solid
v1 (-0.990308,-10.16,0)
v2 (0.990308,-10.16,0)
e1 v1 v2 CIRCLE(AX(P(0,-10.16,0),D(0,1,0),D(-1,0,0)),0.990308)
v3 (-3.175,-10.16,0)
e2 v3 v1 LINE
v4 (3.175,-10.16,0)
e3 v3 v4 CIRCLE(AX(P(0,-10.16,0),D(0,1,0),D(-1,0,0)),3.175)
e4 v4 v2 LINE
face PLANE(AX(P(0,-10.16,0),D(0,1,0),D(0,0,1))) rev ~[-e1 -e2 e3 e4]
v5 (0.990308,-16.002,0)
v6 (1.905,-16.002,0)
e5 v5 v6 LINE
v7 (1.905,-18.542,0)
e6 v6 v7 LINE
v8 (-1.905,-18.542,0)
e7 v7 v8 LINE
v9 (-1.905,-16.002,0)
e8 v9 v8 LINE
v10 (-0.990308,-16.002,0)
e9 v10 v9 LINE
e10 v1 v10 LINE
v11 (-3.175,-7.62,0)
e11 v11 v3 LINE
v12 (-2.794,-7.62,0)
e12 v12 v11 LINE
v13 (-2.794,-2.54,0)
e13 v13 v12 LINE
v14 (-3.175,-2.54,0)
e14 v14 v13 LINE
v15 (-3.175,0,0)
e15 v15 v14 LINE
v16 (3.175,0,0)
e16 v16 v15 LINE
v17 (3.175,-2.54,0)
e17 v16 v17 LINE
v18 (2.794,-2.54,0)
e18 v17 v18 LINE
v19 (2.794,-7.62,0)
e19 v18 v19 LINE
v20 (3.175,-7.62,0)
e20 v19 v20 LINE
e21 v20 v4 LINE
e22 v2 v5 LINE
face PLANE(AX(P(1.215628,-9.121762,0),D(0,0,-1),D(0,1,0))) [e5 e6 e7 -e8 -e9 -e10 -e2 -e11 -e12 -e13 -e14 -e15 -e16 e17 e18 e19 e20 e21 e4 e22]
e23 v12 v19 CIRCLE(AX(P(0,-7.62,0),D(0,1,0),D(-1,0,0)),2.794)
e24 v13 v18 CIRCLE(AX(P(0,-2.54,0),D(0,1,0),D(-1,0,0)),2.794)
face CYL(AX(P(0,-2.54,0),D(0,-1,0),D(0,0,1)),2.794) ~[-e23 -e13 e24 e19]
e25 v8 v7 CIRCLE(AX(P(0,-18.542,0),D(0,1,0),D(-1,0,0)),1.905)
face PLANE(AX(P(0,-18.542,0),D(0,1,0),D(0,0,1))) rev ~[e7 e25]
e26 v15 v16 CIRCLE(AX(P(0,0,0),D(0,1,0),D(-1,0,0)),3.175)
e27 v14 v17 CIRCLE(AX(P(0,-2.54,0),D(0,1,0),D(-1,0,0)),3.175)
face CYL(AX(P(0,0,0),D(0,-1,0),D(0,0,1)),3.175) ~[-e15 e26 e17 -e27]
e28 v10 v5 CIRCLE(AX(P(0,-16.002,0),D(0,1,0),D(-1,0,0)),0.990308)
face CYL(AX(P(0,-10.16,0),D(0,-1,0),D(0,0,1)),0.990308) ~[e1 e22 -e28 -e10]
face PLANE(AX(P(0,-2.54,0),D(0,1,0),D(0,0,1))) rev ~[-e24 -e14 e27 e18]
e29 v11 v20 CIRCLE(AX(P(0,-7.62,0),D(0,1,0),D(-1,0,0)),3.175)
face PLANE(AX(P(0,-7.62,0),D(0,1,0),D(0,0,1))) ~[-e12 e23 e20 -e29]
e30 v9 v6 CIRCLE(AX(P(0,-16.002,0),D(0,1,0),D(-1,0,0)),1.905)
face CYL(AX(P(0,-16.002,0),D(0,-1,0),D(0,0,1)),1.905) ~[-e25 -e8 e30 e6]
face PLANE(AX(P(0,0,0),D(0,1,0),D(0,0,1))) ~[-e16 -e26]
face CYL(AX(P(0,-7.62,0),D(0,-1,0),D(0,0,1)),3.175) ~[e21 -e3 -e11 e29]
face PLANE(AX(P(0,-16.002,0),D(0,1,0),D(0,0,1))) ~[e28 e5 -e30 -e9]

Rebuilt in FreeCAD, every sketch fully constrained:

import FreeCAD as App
import Part
import Sketcher

V = App.Vector
Q = App.Units.Quantity

doc = App.newDocument("Part")
params = doc.addObject("Spreadsheet::Sheet", "Params")
for row, (alias, value) in enumerate([
    ("sketch1_width", "0.1 in"),
    ("sketch1_width2", "0.2 in"),
    ("sketch1_width3", "0.73 in"),
    ("sketch1_height", "0.125 in"),
    ("sketch1_height2", "0.015 in"),
    ("revolution_angle", "90 deg"),
    ("sketch2_width", "0.1 in"),
    ("sketch2_width2", "0.2 in"),
    ("sketch2_width3", "0.73 in"),
    ("sketch2_height", "0.125 in"),
    ("sketch2_height2", "0.015 in"),
    ("revolution2_angle", "90 deg"),
], start=1):
    params.set(f"A{row}", alias)
    params.set(f"B{row}", "=" + value)
    params.setAlias(f"B{row}", alias)

body = doc.addObject("PartDesign::Body", "Body")

sketch1 = body.newObject("Sketcher::SketchObject", "Sketch")
sketch1.AttachmentSupport = (doc.getObject("YZ_Plane"), [""])
sketch1.MapMode = "FlatFace"
sketch1.addGeometry([
    Part.LineSegment(V(-18.54, 0, 0), V(0, 0, 0)),
    Part.LineSegment(V(0, 0, 0), V(0, 3.17, 0)),
    Part.LineSegment(V(0, 3.17, 0), V(-2.54, 3.17, 0)),
    Part.LineSegment(V(-2.54, 3.17, 0), V(-2.54, 2.79, 0)),
    Part.LineSegment(V(-2.54, 2.79, 0), V(-7.62, 2.79, 0)),
    Part.LineSegment(V(-7.62, 2.79, 0), V(-7.62, 3.17, 0)),
    Part.LineSegment(V(-7.62, 3.17, 0), V(-10.16, 3.17, 0)),
    Part.LineSegment(V(-10.16, 3.17, 0), V(-10.16, 0.99, 0)),
    Part.LineSegment(V(-10.16, 0.99, 0), V(-16, 0.99, 0)),
    Part.LineSegment(V(-16, 0.99, 0), V(-16, 1.91, 0)),
    Part.LineSegment(V(-16, 1.91, 0), V(-18.54, 1.91, 0)),
    Part.LineSegment(V(-18.54, 1.91, 0), V(-18.54, 0, 0)),
], False)
sketch1.addConstraint([
    Sketcher.Constraint("Coincident", 0, 2, 1, 1),
    Sketcher.Constraint("Coincident", 1, 2, 2, 1),
    Sketcher.Constraint("Coincident", 2, 2, 3, 1),
    Sketcher.Constraint("Coincident", 3, 2, 4, 1),
    Sketcher.Constraint("Coincident", 4, 2, 5, 1),
    Sketcher.Constraint("Coincident", 5, 2, 6, 1),
    Sketcher.Constraint("Coincident", 6, 2, 7, 1),
    Sketcher.Constraint("Coincident", 7, 2, 8, 1),
    Sketcher.Constraint("Coincident", 8, 2, 9, 1),
    Sketcher.Constraint("Coincident", 9, 2, 10, 1),
    Sketcher.Constraint("Coincident", 10, 2, 11, 1),
    Sketcher.Constraint("Coincident", 11, 2, 0, 1),
    Sketcher.Constraint("Horizontal", 0),
    Sketcher.Constraint("Vertical", 1),
    Sketcher.Constraint("Horizontal", 2),
    Sketcher.Constraint("Vertical", 3),
    Sketcher.Constraint("Horizontal", 4),
    Sketcher.Constraint("Vertical", 5),
    Sketcher.Constraint("Horizontal", 6),
    Sketcher.Constraint("Vertical", 7),
    Sketcher.Constraint("Horizontal", 8),
    Sketcher.Constraint("Vertical", 9),
    Sketcher.Constraint("Horizontal", 10),
    Sketcher.Constraint("Vertical", 11),
    Sketcher.Constraint("Coincident", 0, 2, -1, 1),
    Sketcher.Constraint("Horizontal", 2, 2, 5, 2),
    Sketcher.Constraint("Equal", 2, 6),
    Sketcher.Constraint("Equal", 6, 10),
    Sketcher.Constraint("DistanceX", 2, 2, 2, 1, Q("0.1 in")),
    Sketcher.Constraint("DistanceX", 4, 2, 4, 1, Q("0.2 in")),
    Sketcher.Constraint("DistanceX", 0, 1, 0, 2, Q("0.73 in")),
    Sketcher.Constraint("DistanceY", 1, 1, 1, 2, Q("0.125 in")),
    Sketcher.Constraint("DistanceY", 3, 2, 3, 1, Q("0.015 in")),
    Sketcher.Constraint("DistanceY", 11, 2, 11, 1, Q("0.075 in")),
    Sketcher.Constraint("DistanceY", 7, 2, 7, 1, Q("2.184692 mm")),
])
sketch1.setExpression("Constraints[28]", "Params.sketch1_width")
sketch1.setExpression("Constraints[29]", "Params.sketch1_width2")
sketch1.setExpression("Constraints[30]", "Params.sketch1_width3")
sketch1.setExpression("Constraints[31]", "Params.sketch1_height")
sketch1.setExpression("Constraints[32]", "Params.sketch1_height2")
revolution = body.newObject("PartDesign::Revolution", "Revolution")
revolution.Profile = sketch1
revolution.ReferenceAxis = (sketch1, ["H_Axis"])
revolution.setExpression("Angle", "Params.revolution_angle")
revolution.Reversed = True

sketch2 = body.newObject("Sketcher::SketchObject", "Sketch001")
sketch2.AttachmentSupport = (doc.getObject("YZ_Plane"), [""])
sketch2.MapMode = "FlatFace"
sketch2.addGeometry([
    Part.LineSegment(V(-18.54, 0, 0), V(0, 0, 0)),
    Part.LineSegment(V(0, 0, 0), V(0, 3.17, 0)),
    Part.LineSegment(V(0, 3.17, 0), V(-2.54, 3.17, 0)),
    Part.LineSegment(V(-2.54, 3.17, 0), V(-2.54, 2.79, 0)),
    Part.LineSegment(V(-2.54, 2.79, 0), V(-7.62, 2.79, 0)),
    Part.LineSegment(V(-7.62, 2.79, 0), V(-7.62, 3.17, 0)),
    Part.LineSegment(V(-7.62, 3.17, 0), V(-10.16, 3.17, 0)),
    Part.LineSegment(V(-10.16, 3.17, 0), V(-10.16, 0.99, 0)),
    Part.LineSegment(V(-10.16, 0.99, 0), V(-16, 0.99, 0)),
    Part.LineSegment(V(-16, 0.99, 0), V(-16, 1.91, 0)),
    Part.LineSegment(V(-16, 1.91, 0), V(-18.54, 1.91, 0)),
    Part.LineSegment(V(-18.54, 1.91, 0), V(-18.54, 0, 0)),
], False)
sketch2.addConstraint([
    Sketcher.Constraint("Coincident", 0, 2, 1, 1),
    Sketcher.Constraint("Coincident", 1, 2, 2, 1),
    Sketcher.Constraint("Coincident", 2, 2, 3, 1),
    Sketcher.Constraint("Coincident", 3, 2, 4, 1),
    Sketcher.Constraint("Coincident", 4, 2, 5, 1),
    Sketcher.Constraint("Coincident", 5, 2, 6, 1),
    Sketcher.Constraint("Coincident", 6, 2, 7, 1),
    Sketcher.Constraint("Coincident", 7, 2, 8, 1),
    Sketcher.Constraint("Coincident", 8, 2, 9, 1),
    Sketcher.Constraint("Coincident", 9, 2, 10, 1),
    Sketcher.Constraint("Coincident", 10, 2, 11, 1),
    Sketcher.Constraint("Coincident", 11, 2, 0, 1),
    Sketcher.Constraint("Horizontal", 0),
    Sketcher.Constraint("Vertical", 1),
    Sketcher.Constraint("Horizontal", 2),
    Sketcher.Constraint("Vertical", 3),
    Sketcher.Constraint("Horizontal", 4),
    Sketcher.Constraint("Vertical", 5),
    Sketcher.Constraint("Horizontal", 6),
    Sketcher.Constraint("Vertical", 7),
    Sketcher.Constraint("Horizontal", 8),
    Sketcher.Constraint("Vertical", 9),
    Sketcher.Constraint("Horizontal", 10),
    Sketcher.Constraint("Vertical", 11),
    Sketcher.Constraint("Coincident", 0, 2, -1, 1),
    Sketcher.Constraint("Horizontal", 2, 2, 5, 2),
    Sketcher.Constraint("Equal", 2, 6),
    Sketcher.Constraint("Equal", 6, 10),
    Sketcher.Constraint("DistanceX", 2, 2, 2, 1, Q("0.1 in")),
    Sketcher.Constraint("DistanceX", 4, 2, 4, 1, Q("0.2 in")),
    Sketcher.Constraint("DistanceX", 0, 1, 0, 2, Q("0.73 in")),
    Sketcher.Constraint("DistanceY", 1, 1, 1, 2, Q("0.125 in")),
    Sketcher.Constraint("DistanceY", 3, 2, 3, 1, Q("0.015 in")),
    Sketcher.Constraint("DistanceY", 11, 2, 11, 1, Q("0.075 in")),
    Sketcher.Constraint("DistanceY", 7, 2, 7, 1, Q("2.184692 mm")),
])
sketch2.setExpression("Constraints[28]", "Params.sketch2_width")
sketch2.setExpression("Constraints[29]", "Params.sketch2_width2")
sketch2.setExpression("Constraints[30]", "Params.sketch2_width3")
sketch2.setExpression("Constraints[31]", "Params.sketch2_height")
sketch2.setExpression("Constraints[32]", "Params.sketch2_height2")
revolution2 = body.newObject("PartDesign::Revolution", "Revolution001")
revolution2.Profile = sketch2
revolution2.ReferenceAxis = (sketch2, ["H_Axis"])
revolution2.setExpression("Angle", "Params.revolution2_angle")

doc.recompute()
